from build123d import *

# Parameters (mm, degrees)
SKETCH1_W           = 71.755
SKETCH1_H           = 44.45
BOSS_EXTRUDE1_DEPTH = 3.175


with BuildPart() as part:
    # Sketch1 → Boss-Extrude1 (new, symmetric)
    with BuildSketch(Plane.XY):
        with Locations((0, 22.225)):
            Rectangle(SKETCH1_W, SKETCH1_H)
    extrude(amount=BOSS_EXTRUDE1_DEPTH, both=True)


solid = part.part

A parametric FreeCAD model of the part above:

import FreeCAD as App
import Part
import Sketcher
from FreeCAD import Vector
Q = App.Units.Quantity


def add_polygon(sketch, points):
    """Adds a closed chain of lines whose ends are joined by coincident constraints."""
    first, n = sketch.GeometryCount, len(points)
    for a, b in zip(points, points[1:] + points[:1]):
        sketch.addGeometry(Part.LineSegment(App.Vector(*a, 0), App.Vector(*b, 0)), False)
    for i in range(n):
        sketch.addConstraint(Sketcher.Constraint("Coincident", first + i, 2, first + (i + 1) % n, 1))

doc = App.newDocument("Part")
params = doc.addObject("Spreadsheet::Sheet", "Params")
for row, (alias, value) in enumerate([
    ("sketch1_height", "1.75 in"),
    ("sketch1_width", "2.825 in"),
    ("pad1_length", "0.25 in"),
], start=1):
    params.set(f"A{row}", alias)
    params.set(f"B{row}", "=" + value)
    params.setAlias(f"B{row}", alias)

body = doc.addObject("PartDesign::Body", "Body")

# Sketch on XY plane
sketch1 = doc.addObject("Sketcher::SketchObject", "Sketch")
body.addObject(sketch1)
sketch1.AttachmentSupport = (doc.XY_Plane, [""])
sketch1.MapMode = "FlatFace"
add_polygon(sketch1, [(-36, 44), (-36, 0), (36, 0), (36, 44)])  # lines 0-3
sketch1.addConstraint(Sketcher.Constraint("Vertical", 0))
sketch1.addConstraint(Sketcher.Constraint("Horizontal", 1))
sketch1.addConstraint(Sketcher.Constraint("Vertical", 2))
sketch1.addConstraint(Sketcher.Constraint("Horizontal", 3))
sketch1.addConstraint(Sketcher.Constraint("Symmetric", 0, 2, 1, 2, -1, 1))
sketch1.addConstraint(Sketcher.Constraint("DistanceY", 0, 2, 0, 1, Q("1.75 in")))
sketch1.addConstraint(Sketcher.Constraint("DistanceX", 1, 1, 1, 2, Q("2.825 in")))
sketch1.setExpression("Constraints[9]", "Params.sketch1_height")
sketch1.setExpression("Constraints[10]", "Params.sketch1_width")
pad1 = doc.addObject("PartDesign::Pad", "Pad")
body.addObject(pad1)
pad1.Profile = sketch1
pad1.setExpression("Length", "Params.pad1_length")
pad1.Midplane = True

doc.recompute()
